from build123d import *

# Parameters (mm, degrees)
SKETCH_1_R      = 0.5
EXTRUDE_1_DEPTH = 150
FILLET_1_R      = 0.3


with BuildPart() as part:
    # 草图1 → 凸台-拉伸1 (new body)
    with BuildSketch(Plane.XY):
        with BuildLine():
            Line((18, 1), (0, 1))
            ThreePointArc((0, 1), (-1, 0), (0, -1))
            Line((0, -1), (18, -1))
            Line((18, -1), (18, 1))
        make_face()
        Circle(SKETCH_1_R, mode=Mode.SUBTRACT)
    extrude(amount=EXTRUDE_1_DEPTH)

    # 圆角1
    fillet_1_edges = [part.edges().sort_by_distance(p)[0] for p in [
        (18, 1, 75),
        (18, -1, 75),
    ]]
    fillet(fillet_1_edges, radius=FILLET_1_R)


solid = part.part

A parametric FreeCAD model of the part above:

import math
import FreeCAD as App
import Part
import Sketcher
from FreeCAD import Vector
Q = App.Units.Quantity


def edges_at(feature, points):
    """Names of the edges that pass closest to the given points."""
    edges = feature.Shape.Edges
    near = lambda p: min(range(len(edges)), key=lambda i: edges[i].distToShape(Part.Vertex(*p))[0])
    return sorted({f"Edge{near(p) + 1}" for p in points})

doc = App.newDocument("Part")
params = doc.addObject("Spreadsheet::Sheet", "Params")
for row, (alias, value) in enumerate([
    ("sketch1_diameter", "1 mm"),
    ("sketch1_radius", "1 mm"),
    ("sketch1_width", "18 mm"),
    ("pad1_length", "150 mm"),
    ("fillet_radius", "0.3 mm"),
], start=1):
    params.set(f"A{row}", alias)
    params.set(f"B{row}", "=" + value)
    params.setAlias(f"B{row}", alias)

body = doc.addObject("PartDesign::Body", "Body")

sketch1 = doc.addObject("Sketcher::SketchObject", "Sketch")
body.addObject(sketch1)
sketch1.AttachmentSupport = (doc.XY_Plane, [""])
sketch1.MapMode = "FlatFace"
sketch1.addGeometry([
    Part.LineSegment(Vector(18, 1, 0), Vector(0, 1, 0)),
    Part.ArcOfCircle(Part.Circle(Vector(0, 0, 0), Vector(0, 0, 1), 1), math.radians(90), math.radians(270)),
    Part.LineSegment(Vector(0, -1, 0), Vector(18, -1, 0)),
    Part.LineSegment(Vector(18, -1, 0), Vector(18, 1, 0)),
    Part.Circle(Vector(0, 0, 0), Vector(0, 0, 1), 0.5),
], False)
sketch1.addConstraint([
    Sketcher.Constraint("Tangent", 0, 2, 1, 1),
    Sketcher.Constraint("Tangent", 1, 2, 2, 1),
    Sketcher.Constraint("Coincident", 2, 2, 3, 1),
    Sketcher.Constraint("Coincident", 3, 2, 0, 1),
    Sketcher.Constraint("Horizontal", 0),
    Sketcher.Constraint("Horizontal", 2),
    Sketcher.Constraint("Vertical", 3),
    Sketcher.Constraint("Coincident", 1, 3, -1, 1),
    Sketcher.Constraint("Coincident", 4, 3, -1, 1),
    Sketcher.Constraint("Diameter", 4, Q("1 mm")),
    Sketcher.Constraint("Radius", 1, Q("1 mm")),
    Sketcher.Constraint("DistanceX", 0, 2, 0, 1, Q("18 mm")),
])
sketch1.setExpression("Constraints[9]", "Params.sketch1_diameter")
sketch1.setExpression("Constraints[10]", "Params.sketch1_radius")
sketch1.setExpression("Constraints[11]", "Params.sketch1_width")
pad1 = doc.addObject("PartDesign::Pad", "Pad")
body.addObject(pad1)
pad1.Profile = sketch1
pad1.setExpression("Length", "Params.pad1_length")
doc.recompute()

fillet = doc.addObject("PartDesign::Fillet", "Fillet")
body.addObject(fillet)
fillet.Base = (pad1, edges_at(pad1, [(18, 1, 75), (18, -1, 75)]))
fillet.setExpression("Radius", "Params.fillet_radius")

doc.recompute()
